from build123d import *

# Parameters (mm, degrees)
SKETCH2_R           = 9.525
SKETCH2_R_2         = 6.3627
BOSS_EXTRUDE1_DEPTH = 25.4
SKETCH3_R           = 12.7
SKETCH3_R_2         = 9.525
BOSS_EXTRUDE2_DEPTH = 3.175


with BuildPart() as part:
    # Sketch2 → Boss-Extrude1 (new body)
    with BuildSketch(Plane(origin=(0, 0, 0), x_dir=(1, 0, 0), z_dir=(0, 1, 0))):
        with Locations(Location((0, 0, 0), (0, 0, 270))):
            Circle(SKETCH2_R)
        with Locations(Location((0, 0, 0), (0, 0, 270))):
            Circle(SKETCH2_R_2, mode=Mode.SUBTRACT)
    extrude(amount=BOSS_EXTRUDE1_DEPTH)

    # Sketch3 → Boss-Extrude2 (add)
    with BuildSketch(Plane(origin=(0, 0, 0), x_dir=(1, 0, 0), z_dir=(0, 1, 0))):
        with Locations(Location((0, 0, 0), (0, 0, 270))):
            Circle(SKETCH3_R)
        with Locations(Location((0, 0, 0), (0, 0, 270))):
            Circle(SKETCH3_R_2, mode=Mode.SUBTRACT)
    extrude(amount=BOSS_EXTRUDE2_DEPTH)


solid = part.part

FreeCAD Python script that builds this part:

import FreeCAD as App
import Part
import Sketcher
Q = App.Units.Quantity

doc = App.newDocument("Part")
params = doc.addObject("Spreadsheet::Sheet", "Params")
for row, (alias, value) in enumerate([
    ("sketch1_diameter", "0.75 in"),
    ("sketch1_diameter2", "0.501 in"),
    ("pad1_length", "1 in"),
    ("sketch2_diameter", "1 in"),
    ("sketch2_diameter2", "0.75 in"),
    ("pad2_length", "0.125 in"),
], start=1):
    params.set(f"A{row}", alias)
    params.set(f"B{row}", "=" + value)
    params.setAlias(f"B{row}", alias)

body = doc.addObject("PartDesign::Body", "Body")

# Sketch on XZ plane
sketch1 = body.newObject("Sketcher::SketchObject", "Sketch")
sketch1.AttachmentSupport = (doc.getObject("XZ_Plane"), [""])
sketch1.MapMode = "FlatFace"
sketch1.addGeometry([
    Part.Circle(App.Vector(0, 0, 0), App.Vector(0, 0, 1), 9.525),
    Part.Circle(App.Vector(0, 0, 0), App.Vector(0, 0, 1), 6.3627),
], False)
sketch1.addConstraint([
    Sketcher.Constraint("Coincident", 0, 3, -1, 1),
    Sketcher.Constraint("Coincident", 1, 3, -1, 1),
    Sketcher.Constraint("Diameter", 0, Q("0.75 in")),
    Sketcher.Constraint("Diameter", 1, Q("0.501 in")),
])
sketch1.setExpression("Constraints[2]", "Params.sketch1_diameter")
sketch1.setExpression("Constraints[3]", "Params.sketch1_diameter2")
pad1 = body.newObject("PartDesign::Pad", "Pad")
pad1.Profile = sketch1
pad1.setExpression("Length", "Params.pad1_length")
pad1.Reversed = True

# Sketch on XZ plane
sketch2 = body.newObject("Sketcher::SketchObject", "Sketch001")
sketch2.AttachmentSupport = (doc.getObject("XZ_Plane"), [""])
sketch2.MapMode = "FlatFace"
sketch2.addGeometry([
    Part.Circle(App.Vector(0, 0, 0), App.Vector(0, 0, 1), 12.7),
    Part.Circle(App.Vector(0, 0, 0), App.Vector(0, 0, 1), 9.525),
], False)
sketch2.addConstraint([
    Sketcher.Constraint("Coincident", 0, 3, -1, 1),
    Sketcher.Constraint("Coincident", 1, 3, -1, 1),
    Sketcher.Constraint("Diameter", 0, Q("1 in")),
    Sketcher.Constraint("Diameter", 1, Q("0.75 in")),
])
sketch2.setExpression("Constraints[2]", "Params.sketch2_diameter")
sketch2.setExpression("Constraints[3]", "Params.sketch2_diameter2")
pad2 = body.newObject("PartDesign::Pad", "Pad001")
pad2.Profile = sketch2
pad2.setExpression("Length", "Params.pad2_length")
pad2.Reversed = True

doc.recompute()
